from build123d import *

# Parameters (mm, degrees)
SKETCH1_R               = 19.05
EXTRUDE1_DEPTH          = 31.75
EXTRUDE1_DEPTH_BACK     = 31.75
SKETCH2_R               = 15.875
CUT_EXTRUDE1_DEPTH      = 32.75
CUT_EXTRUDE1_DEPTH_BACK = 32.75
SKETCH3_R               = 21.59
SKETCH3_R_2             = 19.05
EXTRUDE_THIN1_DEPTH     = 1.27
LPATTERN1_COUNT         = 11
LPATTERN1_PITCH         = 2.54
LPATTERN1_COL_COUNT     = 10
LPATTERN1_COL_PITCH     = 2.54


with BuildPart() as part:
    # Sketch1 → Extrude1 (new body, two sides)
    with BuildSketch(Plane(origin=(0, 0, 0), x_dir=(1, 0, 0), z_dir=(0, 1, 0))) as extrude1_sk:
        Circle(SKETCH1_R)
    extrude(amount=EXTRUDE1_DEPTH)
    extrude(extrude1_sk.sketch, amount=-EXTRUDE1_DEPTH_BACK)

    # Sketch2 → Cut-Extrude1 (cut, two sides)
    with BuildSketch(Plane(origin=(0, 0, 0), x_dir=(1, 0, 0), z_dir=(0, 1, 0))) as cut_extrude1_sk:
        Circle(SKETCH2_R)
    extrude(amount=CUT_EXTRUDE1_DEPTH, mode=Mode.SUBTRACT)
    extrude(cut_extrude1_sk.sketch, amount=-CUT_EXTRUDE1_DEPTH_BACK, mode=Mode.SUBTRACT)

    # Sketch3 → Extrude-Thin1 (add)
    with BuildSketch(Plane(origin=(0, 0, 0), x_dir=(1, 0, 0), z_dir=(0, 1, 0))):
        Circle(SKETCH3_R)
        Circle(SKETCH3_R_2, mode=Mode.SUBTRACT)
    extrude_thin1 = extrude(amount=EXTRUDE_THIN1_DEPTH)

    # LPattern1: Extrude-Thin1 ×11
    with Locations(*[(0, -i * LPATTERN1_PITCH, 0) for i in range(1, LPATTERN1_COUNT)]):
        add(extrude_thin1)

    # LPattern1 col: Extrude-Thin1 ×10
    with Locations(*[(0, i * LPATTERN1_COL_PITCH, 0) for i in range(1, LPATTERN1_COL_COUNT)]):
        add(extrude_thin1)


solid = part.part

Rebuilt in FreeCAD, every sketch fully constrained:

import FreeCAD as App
import Part
import Sketcher

V = App.Vector
Q = App.Units.Quantity

doc = App.newDocument("Part")
params = doc.addObject("Spreadsheet::Sheet", "Params")
for row, (alias, value) in enumerate([
    ("sketch1_diameter", "1.5 in"),
    ("pad1_length", "1.25 in"),
    ("pad1_length2", "1.25 in"),
    ("sketch2_diameter", "1.25 in"),
    ("sketch3_diameter", "1.7 in"),
    ("sketch3_diameter2", "1.5 in"),
    ("pad2_length", "0.05 in"),
    ("linearpattern_pitch", "0.1 in"),
    ("linearpattern2_pitch", "0.1 in"),
], start=1):
    params.set(f"A{row}", alias)
    params.set(f"B{row}", "=" + value)
    params.setAlias(f"B{row}", alias)

body = doc.addObject("PartDesign::Body", "Body")

sketch1 = doc.addObject("Sketcher::SketchObject", "Sketch")
body.addObject(sketch1)
sketch1.AttachmentSupport = (doc.XZ_Plane, [""])
sketch1.MapMode = "FlatFace"
sketch1.addGeometry(Part.Circle(V(0, 0, 0), V(0, 0, 1), 19), False)
sketch1.addConstraint(Sketcher.Constraint("Coincident", 0, 3, -1, 1))
sketch1.addConstraint(Sketcher.Constraint("Diameter", 0, Q("1.5 in")))
sketch1.setExpression("Constraints[1]", "Params.sketch1_diameter")
pad1 = doc.addObject("PartDesign::Pad", "Pad")
body.addObject(pad1)
pad1.Profile = sketch1
pad1.Type = "TwoLengths"
pad1.setExpression("Length", "Params.pad1_length")
pad1.setExpression("Length2", "Params.pad1_length2")
pad1.Reversed = True

sketch2 = doc.addObject("Sketcher::SketchObject", "Sketch001")
body.addObject(sketch2)
sketch2.AttachmentSupport = (doc.XZ_Plane, [""])
sketch2.MapMode = "FlatFace"
sketch2.addGeometry(Part.Circle(V(0, 0, 0), V(0, 0, 1), 16), False)
sketch2.addConstraint(Sketcher.Constraint("Coincident", 0, 3, -1, 1))
sketch2.addConstraint(Sketcher.Constraint("Diameter", 0, Q("1.25 in")))
sketch2.setExpression("Constraints[1]", "Params.sketch2_diameter")
pocket1 = doc.addObject("PartDesign::Pocket", "Pocket")
body.addObject(pocket1)
pocket1.Profile = sketch2
pocket1.Type = "ThroughAll"
pocket1.Midplane = True

sketch3 = doc.addObject("Sketcher::SketchObject", "Sketch002")
body.addObject(sketch3)
sketch3.AttachmentSupport = (doc.XZ_Plane, [""])
sketch3.MapMode = "FlatFace"
sketch3.addGeometry(Part.Circle(V(0, 0, 0), V(0, 0, 1), 22), False)
sketch3.addGeometry(Part.Circle(V(0, 0, 0), V(0, 0, 1), 19), False)
sketch3.addConstraint(Sketcher.Constraint("Coincident", 0, 3, -1, 1))
sketch3.addConstraint(Sketcher.Constraint("Coincident", 1, 3, -1, 1))
sketch3.addConstraint(Sketcher.Constraint("Diameter", 0, Q("1.7 in")))
sketch3.addConstraint(Sketcher.Constraint("Diameter", 1, Q("1.5 in")))
sketch3.setExpression("Constraints[2]", "Params.sketch3_diameter")
sketch3.setExpression("Constraints[3]", "Params.sketch3_diameter2")
pad2 = doc.addObject("PartDesign::Pad", "Pad001")
body.addObject(pad2)
pad2.Profile = sketch3
pad2.setExpression("Length", "Params.pad2_length")
pad2.Reversed = True
doc.recompute()

linearpattern = doc.addObject("PartDesign::LinearPattern", "LinearPattern")
body.addObject(linearpattern)
linearpattern.Originals = [pad2]
linearpattern.Direction = (doc.Y_Axis, [""])
linearpattern.Mode = "offset"
linearpattern.setExpression("Offset", "Params.linearpattern_pitch")
linearpattern.Occurrences = 11
linearpattern.Reversed = True
body.Tip = linearpattern
doc.recompute()

linearpattern2 = doc.addObject("PartDesign::LinearPattern", "LinearPattern001")
body.addObject(linearpattern2)
linearpattern2.Originals = [pad2]
linearpattern2.Direction = (doc.Y_Axis, [""])
linearpattern2.Mode = "offset"
linearpattern2.setExpression("Offset", "Params.linearpattern2_pitch")
linearpattern2.Occurrences = 10
body.Tip = linearpattern2

doc.recompute()
